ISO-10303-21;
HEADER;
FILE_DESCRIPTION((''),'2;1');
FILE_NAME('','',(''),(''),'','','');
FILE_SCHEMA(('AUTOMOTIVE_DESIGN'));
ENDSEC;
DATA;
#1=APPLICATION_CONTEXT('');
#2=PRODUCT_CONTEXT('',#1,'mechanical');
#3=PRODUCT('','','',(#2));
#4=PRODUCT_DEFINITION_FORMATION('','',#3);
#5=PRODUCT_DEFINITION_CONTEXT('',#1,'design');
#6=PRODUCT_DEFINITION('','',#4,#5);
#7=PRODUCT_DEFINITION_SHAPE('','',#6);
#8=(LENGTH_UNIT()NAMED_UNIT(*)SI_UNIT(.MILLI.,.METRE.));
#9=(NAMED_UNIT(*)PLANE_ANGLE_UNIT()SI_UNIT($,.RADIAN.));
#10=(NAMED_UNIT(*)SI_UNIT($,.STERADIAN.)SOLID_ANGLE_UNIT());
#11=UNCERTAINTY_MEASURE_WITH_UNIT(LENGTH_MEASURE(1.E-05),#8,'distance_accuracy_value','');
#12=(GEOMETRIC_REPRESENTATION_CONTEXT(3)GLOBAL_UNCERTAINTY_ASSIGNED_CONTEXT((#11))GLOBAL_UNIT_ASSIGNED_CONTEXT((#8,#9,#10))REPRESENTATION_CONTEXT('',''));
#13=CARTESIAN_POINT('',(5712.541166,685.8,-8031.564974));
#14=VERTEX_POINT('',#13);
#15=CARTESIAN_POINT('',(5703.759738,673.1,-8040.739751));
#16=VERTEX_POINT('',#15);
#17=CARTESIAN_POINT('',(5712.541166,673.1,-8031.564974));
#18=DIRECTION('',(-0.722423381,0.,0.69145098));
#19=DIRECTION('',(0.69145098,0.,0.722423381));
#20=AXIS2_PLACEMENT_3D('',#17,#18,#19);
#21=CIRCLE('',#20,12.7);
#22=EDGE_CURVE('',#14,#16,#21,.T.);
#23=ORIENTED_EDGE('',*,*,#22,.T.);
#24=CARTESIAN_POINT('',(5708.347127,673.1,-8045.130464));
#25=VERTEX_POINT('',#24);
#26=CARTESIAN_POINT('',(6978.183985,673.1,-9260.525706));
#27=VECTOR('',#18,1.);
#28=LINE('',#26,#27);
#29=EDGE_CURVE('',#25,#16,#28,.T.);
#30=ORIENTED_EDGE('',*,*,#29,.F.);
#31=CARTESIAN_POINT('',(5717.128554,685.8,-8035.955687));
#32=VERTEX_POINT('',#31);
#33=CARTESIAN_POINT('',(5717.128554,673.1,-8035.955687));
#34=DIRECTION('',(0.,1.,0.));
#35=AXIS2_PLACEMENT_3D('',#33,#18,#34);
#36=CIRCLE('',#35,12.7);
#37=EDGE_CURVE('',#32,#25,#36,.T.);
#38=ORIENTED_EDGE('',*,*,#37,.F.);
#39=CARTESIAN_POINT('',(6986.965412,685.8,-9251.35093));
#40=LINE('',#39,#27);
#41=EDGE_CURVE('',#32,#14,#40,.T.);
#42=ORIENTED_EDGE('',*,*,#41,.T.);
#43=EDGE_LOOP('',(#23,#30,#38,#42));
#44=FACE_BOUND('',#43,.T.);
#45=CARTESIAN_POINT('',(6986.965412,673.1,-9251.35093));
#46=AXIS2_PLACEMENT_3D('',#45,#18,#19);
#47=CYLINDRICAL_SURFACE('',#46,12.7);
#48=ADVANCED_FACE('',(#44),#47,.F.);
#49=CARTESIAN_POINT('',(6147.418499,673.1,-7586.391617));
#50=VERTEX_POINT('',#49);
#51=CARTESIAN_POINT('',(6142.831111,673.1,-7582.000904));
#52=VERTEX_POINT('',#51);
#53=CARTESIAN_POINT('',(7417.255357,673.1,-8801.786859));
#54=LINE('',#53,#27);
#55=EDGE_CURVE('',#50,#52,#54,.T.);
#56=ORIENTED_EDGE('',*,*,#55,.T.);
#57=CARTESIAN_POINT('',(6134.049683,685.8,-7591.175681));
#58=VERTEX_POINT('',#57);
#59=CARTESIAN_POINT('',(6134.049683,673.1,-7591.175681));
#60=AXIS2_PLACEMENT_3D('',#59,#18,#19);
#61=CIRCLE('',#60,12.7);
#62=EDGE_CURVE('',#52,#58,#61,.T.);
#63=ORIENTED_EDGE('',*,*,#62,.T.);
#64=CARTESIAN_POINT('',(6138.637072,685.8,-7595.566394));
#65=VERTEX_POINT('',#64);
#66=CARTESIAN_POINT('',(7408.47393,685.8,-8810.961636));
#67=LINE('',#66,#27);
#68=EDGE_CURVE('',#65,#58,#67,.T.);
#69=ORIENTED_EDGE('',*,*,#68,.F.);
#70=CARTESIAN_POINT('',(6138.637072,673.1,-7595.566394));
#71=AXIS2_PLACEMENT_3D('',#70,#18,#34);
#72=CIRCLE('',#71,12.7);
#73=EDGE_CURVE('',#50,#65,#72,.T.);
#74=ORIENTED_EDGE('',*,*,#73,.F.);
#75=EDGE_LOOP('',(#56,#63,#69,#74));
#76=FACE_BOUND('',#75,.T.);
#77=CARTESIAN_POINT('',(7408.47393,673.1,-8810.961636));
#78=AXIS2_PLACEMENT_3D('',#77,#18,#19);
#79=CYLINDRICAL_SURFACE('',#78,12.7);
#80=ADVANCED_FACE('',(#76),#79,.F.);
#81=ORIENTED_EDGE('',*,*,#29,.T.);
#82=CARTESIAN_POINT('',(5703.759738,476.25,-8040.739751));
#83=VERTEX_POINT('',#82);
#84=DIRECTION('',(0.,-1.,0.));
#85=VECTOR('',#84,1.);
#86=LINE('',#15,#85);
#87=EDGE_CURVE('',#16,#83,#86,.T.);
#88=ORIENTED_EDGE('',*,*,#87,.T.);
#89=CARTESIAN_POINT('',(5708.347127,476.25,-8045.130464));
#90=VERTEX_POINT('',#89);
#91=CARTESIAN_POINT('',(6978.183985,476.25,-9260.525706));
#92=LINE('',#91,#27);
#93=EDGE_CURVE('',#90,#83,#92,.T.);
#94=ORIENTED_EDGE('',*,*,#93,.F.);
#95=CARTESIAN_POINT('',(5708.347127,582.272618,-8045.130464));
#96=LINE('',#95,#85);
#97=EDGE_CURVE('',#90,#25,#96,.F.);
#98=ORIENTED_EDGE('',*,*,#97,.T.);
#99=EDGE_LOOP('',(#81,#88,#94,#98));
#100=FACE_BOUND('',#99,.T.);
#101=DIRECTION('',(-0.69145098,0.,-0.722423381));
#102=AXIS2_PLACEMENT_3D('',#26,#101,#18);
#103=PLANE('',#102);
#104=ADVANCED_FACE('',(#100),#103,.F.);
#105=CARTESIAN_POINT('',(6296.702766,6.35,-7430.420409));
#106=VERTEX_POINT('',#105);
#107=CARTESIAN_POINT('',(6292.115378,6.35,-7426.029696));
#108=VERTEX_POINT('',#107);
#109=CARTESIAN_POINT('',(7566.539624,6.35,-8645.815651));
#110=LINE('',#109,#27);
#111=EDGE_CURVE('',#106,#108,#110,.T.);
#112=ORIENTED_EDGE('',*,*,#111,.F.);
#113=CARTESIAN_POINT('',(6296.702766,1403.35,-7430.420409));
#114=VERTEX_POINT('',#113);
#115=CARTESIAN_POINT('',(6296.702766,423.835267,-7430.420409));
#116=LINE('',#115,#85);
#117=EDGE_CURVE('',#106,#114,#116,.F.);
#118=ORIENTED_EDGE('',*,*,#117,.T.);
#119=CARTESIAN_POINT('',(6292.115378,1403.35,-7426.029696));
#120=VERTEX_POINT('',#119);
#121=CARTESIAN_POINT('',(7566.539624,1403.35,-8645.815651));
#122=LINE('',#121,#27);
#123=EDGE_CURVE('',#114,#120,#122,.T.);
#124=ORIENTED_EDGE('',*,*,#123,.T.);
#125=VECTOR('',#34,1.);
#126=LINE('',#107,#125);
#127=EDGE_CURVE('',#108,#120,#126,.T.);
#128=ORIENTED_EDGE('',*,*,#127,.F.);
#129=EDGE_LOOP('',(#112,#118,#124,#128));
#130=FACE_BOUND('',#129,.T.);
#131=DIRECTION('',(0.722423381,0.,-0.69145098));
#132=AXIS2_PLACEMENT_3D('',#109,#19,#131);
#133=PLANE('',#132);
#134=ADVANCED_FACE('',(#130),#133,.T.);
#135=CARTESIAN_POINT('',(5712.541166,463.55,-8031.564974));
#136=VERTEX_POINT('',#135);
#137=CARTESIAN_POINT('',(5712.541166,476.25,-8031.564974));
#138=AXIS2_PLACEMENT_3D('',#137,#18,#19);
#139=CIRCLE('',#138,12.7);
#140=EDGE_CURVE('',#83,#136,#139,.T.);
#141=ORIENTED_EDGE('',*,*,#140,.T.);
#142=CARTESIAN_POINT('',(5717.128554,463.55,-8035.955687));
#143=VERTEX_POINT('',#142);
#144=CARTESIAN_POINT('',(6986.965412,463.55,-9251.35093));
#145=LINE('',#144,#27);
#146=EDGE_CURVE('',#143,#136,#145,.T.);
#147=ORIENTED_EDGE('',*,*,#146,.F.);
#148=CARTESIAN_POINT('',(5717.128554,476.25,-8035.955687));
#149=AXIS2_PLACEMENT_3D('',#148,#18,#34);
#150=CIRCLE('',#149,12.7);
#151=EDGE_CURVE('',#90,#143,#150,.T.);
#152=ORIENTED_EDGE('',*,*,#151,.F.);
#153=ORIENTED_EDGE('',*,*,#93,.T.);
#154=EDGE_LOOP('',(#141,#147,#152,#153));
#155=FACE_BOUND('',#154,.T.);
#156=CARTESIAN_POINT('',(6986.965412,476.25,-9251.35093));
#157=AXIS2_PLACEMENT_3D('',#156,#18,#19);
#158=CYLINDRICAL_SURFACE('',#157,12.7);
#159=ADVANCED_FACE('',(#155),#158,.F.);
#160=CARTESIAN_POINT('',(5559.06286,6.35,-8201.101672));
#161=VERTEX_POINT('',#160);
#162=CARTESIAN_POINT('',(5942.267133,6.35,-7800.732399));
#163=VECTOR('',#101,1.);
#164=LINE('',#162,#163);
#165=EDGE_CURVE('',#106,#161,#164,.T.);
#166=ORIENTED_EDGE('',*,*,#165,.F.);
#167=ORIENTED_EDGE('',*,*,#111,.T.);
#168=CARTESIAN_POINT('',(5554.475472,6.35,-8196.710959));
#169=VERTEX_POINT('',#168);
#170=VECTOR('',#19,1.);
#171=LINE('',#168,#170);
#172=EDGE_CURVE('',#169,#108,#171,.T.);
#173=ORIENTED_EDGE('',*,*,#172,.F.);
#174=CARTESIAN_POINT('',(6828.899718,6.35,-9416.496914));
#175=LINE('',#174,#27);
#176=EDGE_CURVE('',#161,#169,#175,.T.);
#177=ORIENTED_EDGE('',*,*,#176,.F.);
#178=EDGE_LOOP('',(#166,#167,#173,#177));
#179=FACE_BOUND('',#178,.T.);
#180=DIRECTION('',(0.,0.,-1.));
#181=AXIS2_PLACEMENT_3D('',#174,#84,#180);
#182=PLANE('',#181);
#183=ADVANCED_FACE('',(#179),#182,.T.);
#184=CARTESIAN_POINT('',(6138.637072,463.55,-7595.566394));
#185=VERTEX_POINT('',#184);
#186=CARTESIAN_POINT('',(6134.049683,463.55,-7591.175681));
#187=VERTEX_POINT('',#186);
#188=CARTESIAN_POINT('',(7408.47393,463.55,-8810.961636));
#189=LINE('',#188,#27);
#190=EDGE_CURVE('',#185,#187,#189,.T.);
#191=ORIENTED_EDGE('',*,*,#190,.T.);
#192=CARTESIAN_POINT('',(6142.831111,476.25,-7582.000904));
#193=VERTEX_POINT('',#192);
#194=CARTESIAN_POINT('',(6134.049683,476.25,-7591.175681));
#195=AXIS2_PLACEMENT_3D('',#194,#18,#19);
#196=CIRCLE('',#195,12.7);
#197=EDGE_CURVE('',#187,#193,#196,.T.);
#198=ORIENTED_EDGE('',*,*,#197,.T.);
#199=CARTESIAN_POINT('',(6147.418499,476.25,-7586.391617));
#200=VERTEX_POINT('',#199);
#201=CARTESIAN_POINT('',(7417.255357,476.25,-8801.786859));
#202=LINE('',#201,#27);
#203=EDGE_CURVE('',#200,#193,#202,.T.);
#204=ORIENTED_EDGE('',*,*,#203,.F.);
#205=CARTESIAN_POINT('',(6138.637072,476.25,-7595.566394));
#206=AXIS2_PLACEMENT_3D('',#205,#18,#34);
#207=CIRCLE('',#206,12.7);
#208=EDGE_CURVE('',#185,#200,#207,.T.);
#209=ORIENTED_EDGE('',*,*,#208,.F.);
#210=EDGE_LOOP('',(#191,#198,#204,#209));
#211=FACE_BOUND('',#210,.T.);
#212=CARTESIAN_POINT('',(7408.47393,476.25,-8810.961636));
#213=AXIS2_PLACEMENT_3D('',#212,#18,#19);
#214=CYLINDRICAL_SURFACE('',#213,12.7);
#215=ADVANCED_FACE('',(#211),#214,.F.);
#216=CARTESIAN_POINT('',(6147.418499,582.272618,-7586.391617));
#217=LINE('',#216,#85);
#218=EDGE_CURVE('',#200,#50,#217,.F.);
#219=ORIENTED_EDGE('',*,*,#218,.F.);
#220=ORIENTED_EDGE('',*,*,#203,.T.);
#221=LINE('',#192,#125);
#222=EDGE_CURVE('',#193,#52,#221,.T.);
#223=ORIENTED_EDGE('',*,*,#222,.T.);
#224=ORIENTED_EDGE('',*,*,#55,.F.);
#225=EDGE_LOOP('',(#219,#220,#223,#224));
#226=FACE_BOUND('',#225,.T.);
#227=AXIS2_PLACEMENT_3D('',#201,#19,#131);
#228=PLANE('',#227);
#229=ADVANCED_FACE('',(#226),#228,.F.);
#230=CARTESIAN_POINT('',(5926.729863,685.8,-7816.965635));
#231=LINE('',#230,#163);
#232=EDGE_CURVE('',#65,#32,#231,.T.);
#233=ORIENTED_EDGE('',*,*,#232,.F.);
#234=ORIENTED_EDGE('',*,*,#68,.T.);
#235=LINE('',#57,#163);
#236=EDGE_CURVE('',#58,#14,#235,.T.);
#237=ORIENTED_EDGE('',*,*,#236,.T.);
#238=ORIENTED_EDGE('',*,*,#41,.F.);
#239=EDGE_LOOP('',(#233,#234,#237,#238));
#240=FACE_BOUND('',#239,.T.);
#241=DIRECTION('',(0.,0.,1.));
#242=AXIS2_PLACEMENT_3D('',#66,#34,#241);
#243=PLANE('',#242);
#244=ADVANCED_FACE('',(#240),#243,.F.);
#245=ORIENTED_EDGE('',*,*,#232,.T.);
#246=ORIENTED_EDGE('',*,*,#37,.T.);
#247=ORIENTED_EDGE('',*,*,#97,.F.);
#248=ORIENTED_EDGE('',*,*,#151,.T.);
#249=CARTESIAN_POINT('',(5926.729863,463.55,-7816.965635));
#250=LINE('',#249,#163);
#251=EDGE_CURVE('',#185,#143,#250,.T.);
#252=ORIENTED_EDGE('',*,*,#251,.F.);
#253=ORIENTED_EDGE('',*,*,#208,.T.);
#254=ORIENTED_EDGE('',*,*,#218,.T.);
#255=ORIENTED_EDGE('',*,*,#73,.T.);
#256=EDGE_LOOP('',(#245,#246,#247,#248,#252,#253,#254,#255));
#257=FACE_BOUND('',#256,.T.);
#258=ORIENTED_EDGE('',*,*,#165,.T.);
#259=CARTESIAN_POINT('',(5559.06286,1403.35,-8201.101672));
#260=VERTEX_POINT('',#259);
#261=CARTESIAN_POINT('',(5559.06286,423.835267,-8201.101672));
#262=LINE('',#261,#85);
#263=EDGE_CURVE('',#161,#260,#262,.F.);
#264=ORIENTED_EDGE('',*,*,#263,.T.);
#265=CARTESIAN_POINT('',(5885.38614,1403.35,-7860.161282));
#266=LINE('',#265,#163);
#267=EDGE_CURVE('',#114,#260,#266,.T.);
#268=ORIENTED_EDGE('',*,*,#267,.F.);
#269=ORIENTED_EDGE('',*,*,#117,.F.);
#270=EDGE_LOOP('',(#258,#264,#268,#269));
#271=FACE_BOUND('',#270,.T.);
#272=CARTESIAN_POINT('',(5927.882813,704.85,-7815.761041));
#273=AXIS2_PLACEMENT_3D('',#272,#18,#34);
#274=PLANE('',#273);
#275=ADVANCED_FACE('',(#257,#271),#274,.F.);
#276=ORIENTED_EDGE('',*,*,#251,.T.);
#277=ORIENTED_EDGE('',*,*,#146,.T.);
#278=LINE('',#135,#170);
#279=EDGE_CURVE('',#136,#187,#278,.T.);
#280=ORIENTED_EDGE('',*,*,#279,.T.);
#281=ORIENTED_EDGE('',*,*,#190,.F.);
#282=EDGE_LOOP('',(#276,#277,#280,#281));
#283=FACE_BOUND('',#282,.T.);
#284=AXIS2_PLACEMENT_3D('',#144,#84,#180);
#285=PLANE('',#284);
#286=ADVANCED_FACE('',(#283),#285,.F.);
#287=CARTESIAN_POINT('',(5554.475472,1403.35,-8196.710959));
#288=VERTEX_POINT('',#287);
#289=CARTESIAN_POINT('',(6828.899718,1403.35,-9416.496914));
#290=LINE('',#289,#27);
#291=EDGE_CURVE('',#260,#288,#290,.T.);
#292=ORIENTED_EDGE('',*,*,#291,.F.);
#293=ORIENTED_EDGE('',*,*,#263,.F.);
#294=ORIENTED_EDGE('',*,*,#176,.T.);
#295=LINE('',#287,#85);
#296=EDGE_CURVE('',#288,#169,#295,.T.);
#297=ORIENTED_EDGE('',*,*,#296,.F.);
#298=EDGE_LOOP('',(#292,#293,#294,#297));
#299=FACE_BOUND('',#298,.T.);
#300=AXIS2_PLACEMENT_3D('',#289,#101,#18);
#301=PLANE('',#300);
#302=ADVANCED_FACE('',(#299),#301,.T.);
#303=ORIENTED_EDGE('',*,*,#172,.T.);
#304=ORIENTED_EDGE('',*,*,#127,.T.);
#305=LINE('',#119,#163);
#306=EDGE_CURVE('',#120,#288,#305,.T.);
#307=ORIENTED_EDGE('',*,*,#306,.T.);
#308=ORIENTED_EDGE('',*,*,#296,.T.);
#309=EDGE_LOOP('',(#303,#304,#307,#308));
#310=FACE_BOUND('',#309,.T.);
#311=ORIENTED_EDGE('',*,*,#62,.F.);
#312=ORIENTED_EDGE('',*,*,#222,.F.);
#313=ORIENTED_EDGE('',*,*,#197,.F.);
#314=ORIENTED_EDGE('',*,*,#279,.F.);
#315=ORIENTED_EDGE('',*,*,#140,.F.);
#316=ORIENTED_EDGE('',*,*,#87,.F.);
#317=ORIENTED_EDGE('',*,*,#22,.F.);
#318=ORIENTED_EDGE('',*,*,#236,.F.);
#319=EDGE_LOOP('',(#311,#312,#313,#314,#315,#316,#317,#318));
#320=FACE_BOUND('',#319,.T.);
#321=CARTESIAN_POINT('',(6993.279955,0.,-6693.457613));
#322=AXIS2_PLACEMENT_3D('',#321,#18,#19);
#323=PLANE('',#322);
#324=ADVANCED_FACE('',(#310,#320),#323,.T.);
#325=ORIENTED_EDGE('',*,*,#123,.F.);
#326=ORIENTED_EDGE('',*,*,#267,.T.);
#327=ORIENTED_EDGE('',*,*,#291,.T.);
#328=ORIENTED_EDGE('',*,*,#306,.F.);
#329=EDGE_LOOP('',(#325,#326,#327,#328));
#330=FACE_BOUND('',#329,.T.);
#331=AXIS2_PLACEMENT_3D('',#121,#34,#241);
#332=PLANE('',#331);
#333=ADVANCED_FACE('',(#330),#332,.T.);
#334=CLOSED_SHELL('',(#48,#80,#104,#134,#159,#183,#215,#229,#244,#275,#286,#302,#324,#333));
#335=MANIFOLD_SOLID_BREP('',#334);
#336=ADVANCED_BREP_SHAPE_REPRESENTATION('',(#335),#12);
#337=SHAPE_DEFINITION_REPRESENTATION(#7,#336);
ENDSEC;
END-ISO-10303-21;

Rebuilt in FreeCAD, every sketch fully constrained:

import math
import FreeCAD as App
import Part
import Sketcher

V = App.Vector
Q = App.Units.Quantity

doc = App.newDocument("Part")
body = doc.addObject("PartDesign::Body", "Body")

sketch1 = doc.addObject("Sketcher::SketchObject", "Sketch")
body.addObject(sketch1)
sketch1.Placement = App.Placement(V(6993.279955, 0, -6693.457613), App.Rotation(V(0.69145098, 0, 0.722423381), V(0, 0.999999999, 0), V(-0.722423381, 0, 0.69145098), "ZXY"))
sketch1.addGeometry([
    Part.LineSegment(V(-2080.848133, 1403.349998, 0), V(-2080.848133, 6.35, 0)),
    Part.LineSegment(V(-2080.848133, 6.35, 0), V(-1014.048134, 6.35, 0)),
    Part.LineSegment(V(-1014.048134, 6.35, 0), V(-1014.048134, 1403.349998, 0)),
    Part.LineSegment(V(-1014.048134, 1403.349998, 0), V(-2080.848133, 1403.349998, 0)),
    Part.LineSegment(V(-1852.248134, 685.799999, 0), V(-1242.648134, 685.799999, 0)),
    Part.ArcOfCircle(Part.Circle(V(-1242.648134, 673.099999, 0), V(0, 0, 1), 12.7), math.radians(0), math.radians(90)),
    Part.LineSegment(V(-1229.948134, 673.099999, 0), V(-1229.948134, 476.249999, 0)),
    Part.ArcOfCircle(Part.Circle(V(-1242.648134, 476.249999, 0), V(0, 0, 1), 12.7), math.radians(-90), math.radians(0)),
    Part.LineSegment(V(-1242.648134, 463.549999, 0), V(-1852.248134, 463.549999, 0)),
    Part.ArcOfCircle(Part.Circle(V(-1852.248134, 476.249999, 0), V(0, 0, 1), 12.7), math.radians(180), math.radians(270)),
    Part.LineSegment(V(-1864.948134, 476.249999, 0), V(-1864.948134, 673.099999, 0)),
    Part.ArcOfCircle(Part.Circle(V(-1852.248134, 673.099999, 0), V(0, 0, 1), 12.7), math.radians(90), math.radians(180)),
], False)
sketch1.addConstraint([
    Sketcher.Constraint("Coincident", 0, 2, 1, 1),
    Sketcher.Constraint("Coincident", 1, 2, 2, 1),
    Sketcher.Constraint("Coincident", 2, 2, 3, 1),
    Sketcher.Constraint("Coincident", 3, 2, 0, 1),
    Sketcher.Constraint("Tangent", 4, 2, 5, 2),
    Sketcher.Constraint("Tangent", 5, 1, 6, 1),
    Sketcher.Constraint("Tangent", 6, 2, 7, 2),
    Sketcher.Constraint("Tangent", 7, 1, 8, 1),
    Sketcher.Constraint("Tangent", 8, 2, 9, 2),
    Sketcher.Constraint("Tangent", 9, 1, 10, 1),
    Sketcher.Constraint("Tangent", 10, 2, 11, 2),
    Sketcher.Constraint("Tangent", 11, 1, 4, 1),
    Sketcher.Constraint("Vertical", 0),
    Sketcher.Constraint("Horizontal", 1),
    Sketcher.Constraint("Vertical", 2),
    Sketcher.Constraint("Horizontal", 3),
    Sketcher.Constraint("Horizontal", 4),
    Sketcher.Constraint("Vertical", 6),
    Sketcher.Constraint("Horizontal", 8),
    Sketcher.Constraint("Vertical", 10),
    Sketcher.Constraint("Equal", 5, 7),
    Sketcher.Constraint("Equal", 7, 9),
    Sketcher.Constraint("Equal", 9, 11),
    Sketcher.Constraint("Radius", 5, Q("0.5 in")),
    Sketcher.Constraint("DistanceX", 1, 1, 1, 2, Q("42 in")),
    Sketcher.Constraint("DistanceX", 4, 1, 4, 2, Q("24 in")),
    Sketcher.Constraint("DistanceY", 0, 2, 0, 1, Q("54.9999999 in")),
    Sketcher.Constraint("DistanceY", -1, 1, 4, 2, Q("27 in")),
    Sketcher.Constraint("DistanceX", 0, 2, 9, 3, Q("9 in")),
    Sketcher.Constraint("DistanceY", 0, 2, 8, 2, Q("18 in")),
    Sketcher.Constraint("DistanceY", 6, 2, 6, 1, Q("7.75 in")),
    Sketcher.Constraint("DistanceX", 5, 3, -1, 1, 1242.648134),
])
pad1 = doc.addObject("PartDesign::Pad", "Pad")
body.addObject(pad1)
pad1.Profile = sketch1
pad1.Length = Q("0.25 in")
pad1.Reversed = True

doc.recompute()
